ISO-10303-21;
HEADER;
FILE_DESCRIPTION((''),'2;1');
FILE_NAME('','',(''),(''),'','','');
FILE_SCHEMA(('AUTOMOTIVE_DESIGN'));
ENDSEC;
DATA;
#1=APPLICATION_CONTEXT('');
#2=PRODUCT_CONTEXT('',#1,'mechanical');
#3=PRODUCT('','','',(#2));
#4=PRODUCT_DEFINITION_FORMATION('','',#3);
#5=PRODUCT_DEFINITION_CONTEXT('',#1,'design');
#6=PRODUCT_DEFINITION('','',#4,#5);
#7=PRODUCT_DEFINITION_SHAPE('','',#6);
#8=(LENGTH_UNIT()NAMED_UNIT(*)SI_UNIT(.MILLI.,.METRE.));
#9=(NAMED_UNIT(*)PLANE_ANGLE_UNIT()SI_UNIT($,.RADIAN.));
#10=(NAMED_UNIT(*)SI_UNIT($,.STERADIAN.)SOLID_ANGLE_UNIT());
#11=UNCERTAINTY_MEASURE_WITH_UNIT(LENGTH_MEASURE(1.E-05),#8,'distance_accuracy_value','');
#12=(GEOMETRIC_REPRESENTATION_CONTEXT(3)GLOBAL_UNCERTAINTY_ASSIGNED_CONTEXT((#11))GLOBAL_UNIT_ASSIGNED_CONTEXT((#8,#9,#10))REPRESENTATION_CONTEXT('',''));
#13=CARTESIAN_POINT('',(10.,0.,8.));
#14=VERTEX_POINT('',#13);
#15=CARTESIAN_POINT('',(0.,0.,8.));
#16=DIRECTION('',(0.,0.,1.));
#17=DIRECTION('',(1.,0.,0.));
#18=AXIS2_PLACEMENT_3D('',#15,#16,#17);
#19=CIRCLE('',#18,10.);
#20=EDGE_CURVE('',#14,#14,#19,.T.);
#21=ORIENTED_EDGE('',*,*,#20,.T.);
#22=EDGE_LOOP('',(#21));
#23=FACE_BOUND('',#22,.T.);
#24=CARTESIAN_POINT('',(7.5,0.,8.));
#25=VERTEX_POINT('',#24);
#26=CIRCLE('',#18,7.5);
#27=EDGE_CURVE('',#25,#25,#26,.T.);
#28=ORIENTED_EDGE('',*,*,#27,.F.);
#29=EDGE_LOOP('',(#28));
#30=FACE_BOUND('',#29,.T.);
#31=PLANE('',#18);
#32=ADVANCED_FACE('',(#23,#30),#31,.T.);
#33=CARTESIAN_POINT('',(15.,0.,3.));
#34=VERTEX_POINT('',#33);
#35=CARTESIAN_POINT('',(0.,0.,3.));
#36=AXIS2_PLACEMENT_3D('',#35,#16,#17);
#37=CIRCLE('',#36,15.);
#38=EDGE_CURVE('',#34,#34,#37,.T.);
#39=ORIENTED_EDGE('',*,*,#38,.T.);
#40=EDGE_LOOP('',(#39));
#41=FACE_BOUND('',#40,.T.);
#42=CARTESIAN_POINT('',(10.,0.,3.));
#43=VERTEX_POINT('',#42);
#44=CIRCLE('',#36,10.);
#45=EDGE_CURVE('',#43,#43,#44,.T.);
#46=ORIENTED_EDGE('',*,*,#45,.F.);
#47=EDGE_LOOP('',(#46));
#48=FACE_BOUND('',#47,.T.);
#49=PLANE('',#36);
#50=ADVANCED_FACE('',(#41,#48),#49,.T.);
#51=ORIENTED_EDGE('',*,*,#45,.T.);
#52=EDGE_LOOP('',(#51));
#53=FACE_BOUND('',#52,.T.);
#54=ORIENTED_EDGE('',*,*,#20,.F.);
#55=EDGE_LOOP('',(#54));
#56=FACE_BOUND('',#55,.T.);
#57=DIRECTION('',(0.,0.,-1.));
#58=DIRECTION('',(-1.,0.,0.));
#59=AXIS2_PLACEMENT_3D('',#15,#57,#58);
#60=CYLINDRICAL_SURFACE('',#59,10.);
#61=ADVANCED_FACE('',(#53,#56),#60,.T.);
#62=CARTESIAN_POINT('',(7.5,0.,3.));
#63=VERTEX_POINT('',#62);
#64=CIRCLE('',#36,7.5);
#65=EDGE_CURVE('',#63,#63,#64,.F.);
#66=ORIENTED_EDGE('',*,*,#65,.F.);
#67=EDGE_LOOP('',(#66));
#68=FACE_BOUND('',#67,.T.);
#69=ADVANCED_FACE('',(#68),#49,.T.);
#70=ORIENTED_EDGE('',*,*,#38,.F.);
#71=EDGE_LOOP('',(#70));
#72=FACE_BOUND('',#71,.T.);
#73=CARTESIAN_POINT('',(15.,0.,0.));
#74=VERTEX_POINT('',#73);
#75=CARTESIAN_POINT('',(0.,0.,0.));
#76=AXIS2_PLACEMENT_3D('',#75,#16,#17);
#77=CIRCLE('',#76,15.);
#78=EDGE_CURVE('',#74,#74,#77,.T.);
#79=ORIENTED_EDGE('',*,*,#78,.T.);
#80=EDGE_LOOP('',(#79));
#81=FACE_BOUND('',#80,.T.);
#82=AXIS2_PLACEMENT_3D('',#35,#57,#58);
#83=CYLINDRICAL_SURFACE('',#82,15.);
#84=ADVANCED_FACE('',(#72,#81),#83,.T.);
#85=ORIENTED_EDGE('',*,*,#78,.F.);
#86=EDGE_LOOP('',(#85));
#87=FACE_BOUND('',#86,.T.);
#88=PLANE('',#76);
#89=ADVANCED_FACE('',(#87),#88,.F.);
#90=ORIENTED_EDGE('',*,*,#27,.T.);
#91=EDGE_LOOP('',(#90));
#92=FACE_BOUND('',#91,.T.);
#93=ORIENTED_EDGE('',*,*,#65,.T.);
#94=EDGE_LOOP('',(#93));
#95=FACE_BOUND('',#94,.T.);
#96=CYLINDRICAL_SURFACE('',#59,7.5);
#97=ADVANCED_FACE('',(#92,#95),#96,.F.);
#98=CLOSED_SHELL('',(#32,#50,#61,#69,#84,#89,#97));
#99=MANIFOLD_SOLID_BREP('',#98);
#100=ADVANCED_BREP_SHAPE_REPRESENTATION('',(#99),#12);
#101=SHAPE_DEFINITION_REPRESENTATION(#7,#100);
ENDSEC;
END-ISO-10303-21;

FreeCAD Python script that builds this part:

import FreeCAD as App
import Part
import Sketcher
from FreeCAD import Vector

doc = App.newDocument("Part")
body = doc.addObject("PartDesign::Body", "Body")

sketch1 = body.newObject("Sketcher::SketchObject", "Sketch")
sketch1.AttachmentSupport = (doc.getObject("XY_Plane"), [""])
sketch1.MapMode = "FlatFace"
sketch1.addGeometry(Part.Circle(Vector(0, 0, 0), Vector(0, 0, 1), 15), False)
sketch1.addConstraint(Sketcher.Constraint("Coincident", 0, 3, -1, 1))
sketch1.addConstraint(Sketcher.Constraint("Diameter", 0, 30.0))
pad1 = body.newObject("PartDesign::Pad", "Pad")
pad1.Profile = sketch1
pad1.Length = 3

sketch2 = body.newObject("Sketcher::SketchObject", "Sketch001")
sketch2.AttachmentSupport = (doc.getObject("XY_Plane"), [""])
sketch2.MapMode = "FlatFace"
sketch2.AttachmentOffset = App.Placement(Vector(0, 0, 3), App.Rotation())
sketch2.addGeometry(Part.Circle(Vector(0, 0, 0), Vector(0, 0, 1), 10), False)
sketch2.addGeometry(Part.Circle(Vector(0, 0, 0), Vector(0, 0, 1), 8), False)
sketch2.addConstraint(Sketcher.Constraint("Coincident", 0, 3, -1, 1))
sketch2.addConstraint(Sketcher.Constraint("Coincident", 1, 3, -1, 1))
sketch2.addConstraint(Sketcher.Constraint("Diameter", 0, 20.0))
sketch2.addConstraint(Sketcher.Constraint("Diameter", 1, 15.0))
pad2 = body.newObject("PartDesign::Pad", "Pad001")
pad2.Profile = sketch2
pad2.Length = 5

doc.recompute()
